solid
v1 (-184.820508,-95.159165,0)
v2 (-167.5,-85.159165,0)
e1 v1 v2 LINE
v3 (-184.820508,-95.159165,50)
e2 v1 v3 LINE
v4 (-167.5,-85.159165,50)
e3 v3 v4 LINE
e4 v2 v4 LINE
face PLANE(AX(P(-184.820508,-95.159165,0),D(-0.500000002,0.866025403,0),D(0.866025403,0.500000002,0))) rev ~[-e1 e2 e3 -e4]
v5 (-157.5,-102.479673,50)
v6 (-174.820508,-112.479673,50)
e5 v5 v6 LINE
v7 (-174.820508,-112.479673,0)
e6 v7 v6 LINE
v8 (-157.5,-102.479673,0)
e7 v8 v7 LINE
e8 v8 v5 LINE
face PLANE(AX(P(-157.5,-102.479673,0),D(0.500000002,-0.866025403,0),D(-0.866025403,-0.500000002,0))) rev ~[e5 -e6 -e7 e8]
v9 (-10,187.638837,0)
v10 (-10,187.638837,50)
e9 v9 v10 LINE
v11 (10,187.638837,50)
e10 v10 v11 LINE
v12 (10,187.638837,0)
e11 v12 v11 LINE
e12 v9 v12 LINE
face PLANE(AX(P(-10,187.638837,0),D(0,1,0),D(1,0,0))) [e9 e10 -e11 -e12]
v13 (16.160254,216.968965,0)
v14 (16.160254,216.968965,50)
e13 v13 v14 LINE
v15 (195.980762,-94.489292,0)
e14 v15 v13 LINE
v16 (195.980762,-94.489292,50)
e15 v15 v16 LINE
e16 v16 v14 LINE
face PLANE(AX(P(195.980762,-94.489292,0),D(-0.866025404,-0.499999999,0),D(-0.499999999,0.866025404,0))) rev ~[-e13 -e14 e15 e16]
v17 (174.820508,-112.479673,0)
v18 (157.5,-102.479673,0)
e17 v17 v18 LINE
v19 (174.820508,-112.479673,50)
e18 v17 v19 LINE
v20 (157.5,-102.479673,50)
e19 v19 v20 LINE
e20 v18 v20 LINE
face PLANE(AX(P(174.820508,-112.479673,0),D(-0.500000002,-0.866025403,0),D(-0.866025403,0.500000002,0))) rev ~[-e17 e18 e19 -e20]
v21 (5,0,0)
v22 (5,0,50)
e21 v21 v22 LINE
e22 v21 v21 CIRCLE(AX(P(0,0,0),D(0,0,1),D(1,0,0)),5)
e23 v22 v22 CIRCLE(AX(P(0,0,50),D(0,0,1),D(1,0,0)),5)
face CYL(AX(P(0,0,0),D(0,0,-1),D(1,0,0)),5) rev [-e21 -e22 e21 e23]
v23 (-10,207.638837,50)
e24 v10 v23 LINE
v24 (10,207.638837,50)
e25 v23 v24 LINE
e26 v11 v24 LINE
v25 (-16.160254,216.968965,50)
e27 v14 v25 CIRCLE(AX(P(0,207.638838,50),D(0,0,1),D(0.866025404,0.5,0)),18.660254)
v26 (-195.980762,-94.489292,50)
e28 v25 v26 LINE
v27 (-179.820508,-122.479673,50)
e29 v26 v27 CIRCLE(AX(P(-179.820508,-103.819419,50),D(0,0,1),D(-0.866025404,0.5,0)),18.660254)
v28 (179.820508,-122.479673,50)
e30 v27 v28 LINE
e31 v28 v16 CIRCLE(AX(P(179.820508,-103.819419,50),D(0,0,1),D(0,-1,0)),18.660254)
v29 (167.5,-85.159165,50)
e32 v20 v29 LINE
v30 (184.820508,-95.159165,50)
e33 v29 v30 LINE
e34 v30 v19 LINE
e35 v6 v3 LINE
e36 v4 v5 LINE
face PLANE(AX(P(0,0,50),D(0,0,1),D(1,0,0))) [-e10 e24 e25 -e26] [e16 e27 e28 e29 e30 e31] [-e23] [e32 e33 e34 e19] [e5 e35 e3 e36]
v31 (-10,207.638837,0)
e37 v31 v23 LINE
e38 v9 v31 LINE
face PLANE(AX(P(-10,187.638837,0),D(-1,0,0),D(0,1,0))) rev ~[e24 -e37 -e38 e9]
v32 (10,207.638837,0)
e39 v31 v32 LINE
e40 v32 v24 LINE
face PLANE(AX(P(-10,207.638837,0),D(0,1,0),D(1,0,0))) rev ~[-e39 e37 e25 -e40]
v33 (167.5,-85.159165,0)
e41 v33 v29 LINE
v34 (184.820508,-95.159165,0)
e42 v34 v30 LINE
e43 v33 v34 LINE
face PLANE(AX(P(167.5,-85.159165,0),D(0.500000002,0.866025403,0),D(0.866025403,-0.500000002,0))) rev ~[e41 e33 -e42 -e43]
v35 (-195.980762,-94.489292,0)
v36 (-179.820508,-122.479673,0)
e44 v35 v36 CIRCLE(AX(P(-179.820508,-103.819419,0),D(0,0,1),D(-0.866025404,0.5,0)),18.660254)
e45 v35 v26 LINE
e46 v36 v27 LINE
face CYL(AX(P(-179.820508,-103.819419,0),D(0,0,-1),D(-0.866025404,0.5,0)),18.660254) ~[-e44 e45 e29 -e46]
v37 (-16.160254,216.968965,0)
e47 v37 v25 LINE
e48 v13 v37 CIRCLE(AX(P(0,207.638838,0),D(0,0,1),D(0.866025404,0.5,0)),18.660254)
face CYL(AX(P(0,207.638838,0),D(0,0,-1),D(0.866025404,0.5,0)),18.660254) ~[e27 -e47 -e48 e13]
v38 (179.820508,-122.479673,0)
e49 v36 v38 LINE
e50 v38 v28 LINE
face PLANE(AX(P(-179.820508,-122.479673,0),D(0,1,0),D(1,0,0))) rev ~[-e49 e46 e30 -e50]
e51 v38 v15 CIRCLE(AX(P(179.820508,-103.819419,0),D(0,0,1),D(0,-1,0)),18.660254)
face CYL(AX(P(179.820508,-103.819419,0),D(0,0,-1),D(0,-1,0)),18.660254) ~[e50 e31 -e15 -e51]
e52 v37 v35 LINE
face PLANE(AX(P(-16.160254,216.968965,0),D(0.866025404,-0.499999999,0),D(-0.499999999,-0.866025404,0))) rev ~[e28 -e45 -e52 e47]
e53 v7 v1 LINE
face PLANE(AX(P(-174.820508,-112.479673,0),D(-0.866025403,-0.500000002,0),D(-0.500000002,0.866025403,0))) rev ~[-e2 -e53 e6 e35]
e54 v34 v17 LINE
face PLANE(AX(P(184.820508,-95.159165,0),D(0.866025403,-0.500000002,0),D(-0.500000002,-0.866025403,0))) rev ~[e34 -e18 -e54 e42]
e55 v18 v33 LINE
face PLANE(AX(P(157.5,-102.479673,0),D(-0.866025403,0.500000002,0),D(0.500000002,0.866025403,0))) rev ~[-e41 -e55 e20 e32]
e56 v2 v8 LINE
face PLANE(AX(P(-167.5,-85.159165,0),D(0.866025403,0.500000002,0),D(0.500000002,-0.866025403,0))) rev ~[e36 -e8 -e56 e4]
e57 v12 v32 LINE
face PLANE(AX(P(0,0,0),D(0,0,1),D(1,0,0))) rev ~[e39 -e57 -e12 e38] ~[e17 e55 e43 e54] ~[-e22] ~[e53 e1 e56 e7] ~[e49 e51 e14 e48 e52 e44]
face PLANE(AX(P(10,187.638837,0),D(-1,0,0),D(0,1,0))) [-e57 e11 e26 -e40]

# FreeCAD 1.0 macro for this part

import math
import FreeCAD as App
import Part
import Sketcher
from FreeCAD import Vector
Q = App.Units.Quantity

doc = App.newDocument("Part")
body = doc.addObject("PartDesign::Body", "Body")

# Sketch on XY plane
sketch1 = doc.addObject("Sketcher::SketchObject", "Sketch")
body.addObject(sketch1)
sketch1.AttachmentSupport = (doc.XY_Plane, [""])
sketch1.MapMode = "FlatFace"
sketch1.addGeometry(Part.LineSegment(Vector(-16.160254, 216.968965, 0), Vector(-195.980762, -94.489292, 0)), False)
sketch1.addGeometry(Part.ArcOfCircle(Part.Circle(Vector(-179.820508, -103.819419, 0), Vector(0, 0, 1), 18.660254), math.radians(150), math.radians(270)), False)
sketch1.addGeometry(Part.LineSegment(Vector(-179.820508, -122.479673, 0), Vector(179.820508, -122.479673, 0)), False)
sketch1.addGeometry(Part.ArcOfCircle(Part.Circle(Vector(179.820508, -103.819419, 0), Vector(0, 0, 1), 18.660254), math.radians(-90), math.radians(30)), False)
sketch1.addGeometry(Part.LineSegment(Vector(195.980762, -94.489292, 0), Vector(16.160254, 216.968965, 0)), False)
sketch1.addGeometry(Part.ArcOfCircle(Part.Circle(Vector(0, 207.638838, 0), Vector(0, 0, 1), 18.660254), math.radians(30), math.radians(150)), False)
sketch1.addGeometry(Part.LineSegment(Vector(-184.820508, -95.159165, 0), Vector(-167.5, -85.159165, 0)), False)
sketch1.addGeometry(Part.LineSegment(Vector(-167.5, -85.159165, 0), Vector(-157.5, -102.479673, 0)), False)
sketch1.addGeometry(Part.LineSegment(Vector(-157.5, -102.479673, 0), Vector(-174.820508, -112.479673, 0)), False)
sketch1.addGeometry(Part.LineSegment(Vector(-174.820508, -112.479673, 0), Vector(-184.820508, -95.159165, 0)), False)
sketch1.addGeometry(Part.Circle(Vector(0, 0, 0), Vector(0, 0, 1), 5), False)
sketch1.addGeometry(Part.LineSegment(Vector(174.820508, -112.479673, 0), Vector(157.5, -102.479673, 0)), False)
sketch1.addGeometry(Part.LineSegment(Vector(157.5, -102.479673, 0), Vector(167.5, -85.159165, 0)), False)
sketch1.addGeometry(Part.LineSegment(Vector(167.5, -85.159165, 0), Vector(184.820508, -95.159165, 0)), False)
sketch1.addGeometry(Part.LineSegment(Vector(184.820508, -95.159165, 0), Vector(174.820508, -112.479673, 0)), False)
sketch1.addGeometry(Part.LineSegment(Vector(10, 187.638837, 0), Vector(-10, 187.638837, 0)), False)
sketch1.addGeometry(Part.LineSegment(Vector(-10, 187.638837, 0), Vector(-10, 207.638837, 0)), False)
sketch1.addGeometry(Part.LineSegment(Vector(-10, 207.638837, 0), Vector(10, 207.638837, 0)), False)
sketch1.addGeometry(Part.LineSegment(Vector(10, 207.638837, 0), Vector(10, 187.638837, 0)), False)
sketch1.addConstraint(Sketcher.Constraint("Tangent", 0, 2, 1, 1))
sketch1.addConstraint(Sketcher.Constraint("Tangent", 1, 2, 2, 1))
sketch1.addConstraint(Sketcher.Constraint("Tangent", 2, 2, 3, 1))
sketch1.addConstraint(Sketcher.Constraint("Tangent", 3, 2, 4, 1))
sketch1.addConstraint(Sketcher.Constraint("Tangent", 4, 2, 5, 1))
sketch1.addConstraint(Sketcher.Constraint("Tangent", 5, 2, 0, 1))
sketch1.addConstraint(Sketcher.Constraint("Coincident", 6, 2, 7, 1))
sketch1.addConstraint(Sketcher.Constraint("Coincident", 7, 2, 8, 1))
sketch1.addConstraint(Sketcher.Constraint("Coincident", 8, 2, 9, 1))
sketch1.addConstraint(Sketcher.Constraint("Coincident", 9, 2, 6, 1))
sketch1.addConstraint(Sketcher.Constraint("Coincident", 11, 2, 12, 1))
sketch1.addConstraint(Sketcher.Constraint("Coincident", 12, 2, 13, 1))
sketch1.addConstraint(Sketcher.Constraint("Coincident", 13, 2, 14, 1))
sketch1.addConstraint(Sketcher.Constraint("Coincident", 14, 2, 11, 1))
sketch1.addConstraint(Sketcher.Constraint("Coincident", 15, 2, 16, 1))
sketch1.addConstraint(Sketcher.Constraint("Coincident", 16, 2, 17, 1))
sketch1.addConstraint(Sketcher.Constraint("Coincident", 17, 2, 18, 1))
sketch1.addConstraint(Sketcher.Constraint("Coincident", 18, 2, 15, 1))
sketch1.addConstraint(Sketcher.Constraint("Horizontal", 2))
sketch1.addConstraint(Sketcher.Constraint("Horizontal", 15))
sketch1.addConstraint(Sketcher.Constraint("Vertical", 16))
sketch1.addConstraint(Sketcher.Constraint("Horizontal", 17))
sketch1.addConstraint(Sketcher.Constraint("Vertical", 18))
sketch1.addConstraint(Sketcher.Constraint("Coincident", 10, 3, -1, 1))
sketch1.addConstraint(Sketcher.Constraint("Equal", 1, 3))
sketch1.addConstraint(Sketcher.Constraint("Equal", 3, 5))
sketch1.addConstraint(Sketcher.Constraint("Symmetric", 0, 2, 3, 2, -2))
sketch1.addConstraint(Sketcher.Constraint("Symmetric", 7, 2, 11, 2, -2))
sketch1.addConstraint(Sketcher.Constraint("Symmetric", 6, 2, 12, 2, -2))
sketch1.addConstraint(Sketcher.Constraint("Symmetric", 9, 2, 13, 2, -2))
sketch1.addConstraint(Sketcher.Constraint("Symmetric", 8, 2, 14, 2, -2))
sketch1.addConstraint(Sketcher.Constraint("Perpendicular", 4, 6))
sketch1.addConstraint(Sketcher.Constraint("Perpendicular", 6, 7))
sketch1.addConstraint(Sketcher.Constraint("Perpendicular", 7, 8))
sketch1.addConstraint(Sketcher.Constraint("Perpendicular", 8, 9))
sketch1.addConstraint(Sketcher.Constraint("Horizontal", 5, 3, 16, 2))
sketch1.addConstraint(Sketcher.Constraint("Equal", 17, 16))
sketch1.addConstraint(Sketcher.Constraint("Equal", 6, 7))
sketch1.addConstraint(Sketcher.Constraint("Diameter", 10, 10.0))
sketch1.addConstraint(Sketcher.Constraint("DistanceX", 15, 2, 15, 1, 20.0))
sketch1.addConstraint(Sketcher.Constraint("Angle", 0, Q("-120 deg")))
sketch1.addConstraint(Sketcher.Constraint("Distance", 6, 20.0))
sketch1.addConstraint(Sketcher.Constraint("DistanceX", 15, 2, -1, 1, 10.0))
sketch1.addConstraint(Sketcher.Constraint("DistanceY", 1, 2, 7, 2, 20.0))
sketch1.addConstraint(Sketcher.Constraint("DistanceX", 1, 3, 8, 2, 5.0))
sketch1.addConstraint(Sketcher.Constraint("DistanceX", 7, 2, 11, 2, 315.0))
sketch1.addConstraint(Sketcher.Constraint("Radius", 1, 18.660254))
sketch1.addConstraint(Sketcher.Constraint("DistanceY", 1, 3, -1, 1, 103.819419))
pad1 = doc.addObject("PartDesign::Pad", "Pad")
body.addObject(pad1)
pad1.Profile = sketch1
pad1.Length = 50

doc.recompute()
